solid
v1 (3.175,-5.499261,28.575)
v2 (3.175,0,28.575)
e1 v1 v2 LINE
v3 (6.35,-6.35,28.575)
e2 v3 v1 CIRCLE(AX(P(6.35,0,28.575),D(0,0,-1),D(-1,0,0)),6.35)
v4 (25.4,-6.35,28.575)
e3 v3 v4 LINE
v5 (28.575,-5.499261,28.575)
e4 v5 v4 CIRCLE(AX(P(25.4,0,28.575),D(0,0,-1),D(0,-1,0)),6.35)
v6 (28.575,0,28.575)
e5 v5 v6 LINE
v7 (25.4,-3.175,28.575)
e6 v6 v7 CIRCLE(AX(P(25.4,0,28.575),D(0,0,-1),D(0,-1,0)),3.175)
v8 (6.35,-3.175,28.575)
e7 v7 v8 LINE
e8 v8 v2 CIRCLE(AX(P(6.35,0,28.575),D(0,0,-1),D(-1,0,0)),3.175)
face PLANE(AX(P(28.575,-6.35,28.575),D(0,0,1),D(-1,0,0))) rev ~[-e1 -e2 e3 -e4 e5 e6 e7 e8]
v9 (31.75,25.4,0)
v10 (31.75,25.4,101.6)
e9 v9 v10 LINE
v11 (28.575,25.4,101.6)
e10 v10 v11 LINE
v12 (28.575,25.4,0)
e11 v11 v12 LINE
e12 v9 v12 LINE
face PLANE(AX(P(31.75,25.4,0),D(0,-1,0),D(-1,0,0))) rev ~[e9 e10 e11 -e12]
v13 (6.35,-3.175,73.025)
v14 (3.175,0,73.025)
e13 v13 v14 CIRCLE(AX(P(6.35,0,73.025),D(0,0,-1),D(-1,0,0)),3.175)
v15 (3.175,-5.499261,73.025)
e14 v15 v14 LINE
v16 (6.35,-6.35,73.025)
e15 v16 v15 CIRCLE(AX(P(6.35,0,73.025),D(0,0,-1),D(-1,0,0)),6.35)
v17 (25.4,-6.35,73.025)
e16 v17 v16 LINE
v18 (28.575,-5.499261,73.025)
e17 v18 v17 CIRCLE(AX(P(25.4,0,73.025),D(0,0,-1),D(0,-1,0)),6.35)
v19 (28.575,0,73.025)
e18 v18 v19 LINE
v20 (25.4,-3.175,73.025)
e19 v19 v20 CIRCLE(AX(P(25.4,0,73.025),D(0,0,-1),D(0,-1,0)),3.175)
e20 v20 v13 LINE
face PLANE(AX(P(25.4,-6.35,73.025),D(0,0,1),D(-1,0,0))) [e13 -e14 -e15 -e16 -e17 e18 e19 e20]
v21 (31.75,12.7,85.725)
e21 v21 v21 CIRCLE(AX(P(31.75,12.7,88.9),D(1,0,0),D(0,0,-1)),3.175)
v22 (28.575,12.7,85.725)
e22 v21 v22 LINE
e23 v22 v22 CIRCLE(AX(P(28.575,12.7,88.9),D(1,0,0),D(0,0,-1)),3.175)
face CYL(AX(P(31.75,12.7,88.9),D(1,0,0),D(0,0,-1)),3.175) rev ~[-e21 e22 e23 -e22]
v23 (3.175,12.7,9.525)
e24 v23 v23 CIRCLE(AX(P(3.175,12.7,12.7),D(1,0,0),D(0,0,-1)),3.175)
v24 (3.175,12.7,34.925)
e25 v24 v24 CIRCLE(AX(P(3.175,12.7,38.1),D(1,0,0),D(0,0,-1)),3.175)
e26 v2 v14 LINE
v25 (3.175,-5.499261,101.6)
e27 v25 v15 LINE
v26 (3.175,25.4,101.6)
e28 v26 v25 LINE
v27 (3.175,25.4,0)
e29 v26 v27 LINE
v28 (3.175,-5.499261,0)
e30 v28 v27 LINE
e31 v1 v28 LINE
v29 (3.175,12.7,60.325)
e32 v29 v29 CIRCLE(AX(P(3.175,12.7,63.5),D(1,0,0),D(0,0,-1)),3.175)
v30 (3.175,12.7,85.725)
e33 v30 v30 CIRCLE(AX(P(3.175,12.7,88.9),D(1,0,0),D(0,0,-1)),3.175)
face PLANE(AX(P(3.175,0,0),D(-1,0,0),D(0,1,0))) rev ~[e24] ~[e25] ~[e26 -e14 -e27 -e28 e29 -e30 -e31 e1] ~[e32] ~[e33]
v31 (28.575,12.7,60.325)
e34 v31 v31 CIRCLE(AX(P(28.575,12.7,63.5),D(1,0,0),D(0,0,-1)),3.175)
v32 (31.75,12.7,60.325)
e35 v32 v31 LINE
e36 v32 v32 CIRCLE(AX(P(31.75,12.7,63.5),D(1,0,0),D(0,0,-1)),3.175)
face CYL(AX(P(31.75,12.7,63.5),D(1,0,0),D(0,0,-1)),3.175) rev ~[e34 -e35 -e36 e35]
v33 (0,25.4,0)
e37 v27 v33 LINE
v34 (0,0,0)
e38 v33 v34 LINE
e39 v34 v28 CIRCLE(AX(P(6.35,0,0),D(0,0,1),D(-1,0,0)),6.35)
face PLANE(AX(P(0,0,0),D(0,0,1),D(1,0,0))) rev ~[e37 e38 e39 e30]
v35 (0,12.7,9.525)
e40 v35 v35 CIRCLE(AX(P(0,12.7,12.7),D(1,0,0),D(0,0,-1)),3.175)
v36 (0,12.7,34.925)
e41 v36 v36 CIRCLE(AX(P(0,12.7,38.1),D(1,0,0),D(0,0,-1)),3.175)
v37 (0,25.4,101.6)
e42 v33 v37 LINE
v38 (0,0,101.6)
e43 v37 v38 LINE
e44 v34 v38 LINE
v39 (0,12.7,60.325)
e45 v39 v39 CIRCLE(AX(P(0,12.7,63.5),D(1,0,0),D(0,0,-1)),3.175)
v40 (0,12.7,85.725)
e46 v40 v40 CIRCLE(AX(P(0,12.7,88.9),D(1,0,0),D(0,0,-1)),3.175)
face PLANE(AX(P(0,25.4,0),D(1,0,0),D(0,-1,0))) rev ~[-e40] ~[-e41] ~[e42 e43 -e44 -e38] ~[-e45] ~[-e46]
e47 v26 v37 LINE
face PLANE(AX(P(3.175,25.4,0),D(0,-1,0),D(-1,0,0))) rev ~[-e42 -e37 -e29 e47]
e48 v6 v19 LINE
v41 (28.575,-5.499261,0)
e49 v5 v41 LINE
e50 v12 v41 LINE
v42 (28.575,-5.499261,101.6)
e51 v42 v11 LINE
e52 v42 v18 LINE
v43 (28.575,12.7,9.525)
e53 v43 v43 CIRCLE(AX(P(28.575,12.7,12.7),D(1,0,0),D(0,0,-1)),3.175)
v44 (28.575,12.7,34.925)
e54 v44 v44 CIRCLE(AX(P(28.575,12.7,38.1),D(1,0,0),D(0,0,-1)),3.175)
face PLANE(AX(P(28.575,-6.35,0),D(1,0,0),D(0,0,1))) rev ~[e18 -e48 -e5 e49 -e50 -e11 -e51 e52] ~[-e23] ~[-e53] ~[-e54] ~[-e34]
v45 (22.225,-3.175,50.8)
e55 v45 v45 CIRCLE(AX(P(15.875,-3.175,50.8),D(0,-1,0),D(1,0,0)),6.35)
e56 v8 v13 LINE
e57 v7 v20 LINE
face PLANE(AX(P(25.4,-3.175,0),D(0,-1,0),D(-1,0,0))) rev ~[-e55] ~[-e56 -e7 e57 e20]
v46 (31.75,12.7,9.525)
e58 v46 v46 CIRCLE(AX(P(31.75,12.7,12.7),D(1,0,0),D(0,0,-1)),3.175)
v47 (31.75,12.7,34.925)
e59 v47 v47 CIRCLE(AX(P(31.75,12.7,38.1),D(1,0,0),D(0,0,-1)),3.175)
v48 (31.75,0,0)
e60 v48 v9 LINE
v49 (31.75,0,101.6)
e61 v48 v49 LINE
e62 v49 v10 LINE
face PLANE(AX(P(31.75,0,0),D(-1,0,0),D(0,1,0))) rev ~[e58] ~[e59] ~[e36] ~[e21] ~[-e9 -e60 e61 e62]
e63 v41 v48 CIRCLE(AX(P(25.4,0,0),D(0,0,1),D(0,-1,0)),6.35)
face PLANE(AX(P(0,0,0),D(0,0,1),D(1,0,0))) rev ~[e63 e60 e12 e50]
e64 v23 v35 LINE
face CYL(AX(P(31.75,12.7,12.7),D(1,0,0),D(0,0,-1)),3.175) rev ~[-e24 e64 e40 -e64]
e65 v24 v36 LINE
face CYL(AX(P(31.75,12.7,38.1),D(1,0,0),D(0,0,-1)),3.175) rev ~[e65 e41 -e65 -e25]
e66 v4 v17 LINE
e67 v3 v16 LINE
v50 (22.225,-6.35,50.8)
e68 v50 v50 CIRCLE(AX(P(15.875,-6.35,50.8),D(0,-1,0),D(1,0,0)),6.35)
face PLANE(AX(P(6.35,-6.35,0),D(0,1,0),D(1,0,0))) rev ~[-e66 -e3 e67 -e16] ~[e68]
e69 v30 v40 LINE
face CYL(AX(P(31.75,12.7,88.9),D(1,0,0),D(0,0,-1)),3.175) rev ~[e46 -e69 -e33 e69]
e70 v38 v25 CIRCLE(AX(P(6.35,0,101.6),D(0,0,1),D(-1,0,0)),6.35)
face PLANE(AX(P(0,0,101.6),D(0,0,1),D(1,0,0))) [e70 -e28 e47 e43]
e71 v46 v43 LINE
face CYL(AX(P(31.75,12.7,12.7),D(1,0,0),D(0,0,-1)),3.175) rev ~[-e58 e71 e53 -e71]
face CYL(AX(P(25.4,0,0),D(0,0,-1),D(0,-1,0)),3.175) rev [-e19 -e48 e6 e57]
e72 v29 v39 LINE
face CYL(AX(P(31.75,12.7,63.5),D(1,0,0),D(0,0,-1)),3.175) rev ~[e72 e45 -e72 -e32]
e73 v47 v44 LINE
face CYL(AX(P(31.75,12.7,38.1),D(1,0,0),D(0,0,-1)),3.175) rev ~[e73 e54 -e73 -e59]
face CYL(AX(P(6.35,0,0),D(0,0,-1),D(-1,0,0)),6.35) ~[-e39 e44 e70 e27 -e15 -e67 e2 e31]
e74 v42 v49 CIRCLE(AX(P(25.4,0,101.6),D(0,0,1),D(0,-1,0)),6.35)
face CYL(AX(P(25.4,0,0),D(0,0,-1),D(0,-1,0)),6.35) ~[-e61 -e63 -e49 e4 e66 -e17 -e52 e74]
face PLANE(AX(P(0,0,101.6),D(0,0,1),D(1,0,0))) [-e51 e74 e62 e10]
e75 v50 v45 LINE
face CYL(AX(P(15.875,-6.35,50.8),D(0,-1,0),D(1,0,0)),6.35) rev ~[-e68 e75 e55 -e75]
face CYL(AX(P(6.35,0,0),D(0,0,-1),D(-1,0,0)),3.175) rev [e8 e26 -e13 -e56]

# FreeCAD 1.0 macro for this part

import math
import FreeCAD as App
import Part
import Sketcher
from FreeCAD import Vector
Q = App.Units.Quantity


def add_polygon(sketch, points):
    """Adds a closed chain of lines whose ends are joined by coincident constraints."""
    first, n = sketch.GeometryCount, len(points)
    for a, b in zip(points, points[1:] + points[:1]):
        sketch.addGeometry(Part.LineSegment(App.Vector(*a, 0), App.Vector(*b, 0)), False)
    for i in range(n):
        sketch.addConstraint(Sketcher.Constraint("Coincident", first + i, 2, first + (i + 1) % n, 1))

doc = App.newDocument("Part")
body = doc.addObject("PartDesign::Body", "Body")

sketch1 = doc.addObject("Sketcher::SketchObject", "Sketch")
body.addObject(sketch1)
sketch1.AttachmentSupport = (doc.XY_Plane, [""])
sketch1.MapMode = "FlatFace"
sketch1.addGeometry(Part.LineSegment(Vector(3.2, 25.4, 0), Vector(0, 25.4, 0)), False)
sketch1.addGeometry(Part.LineSegment(Vector(0, 25.4, 0), Vector(0, 0, 0)), False)
sketch1.addGeometry(Part.ArcOfCircle(Part.Circle(Vector(6.3, 0, 0), Vector(0, 0, 1), 6.3), math.radians(180), math.radians(270)), False)
sketch1.addGeometry(Part.LineSegment(Vector(6.3, -6.3, 0), Vector(25.4, -6.3, 0)), False)
sketch1.addGeometry(Part.ArcOfCircle(Part.Circle(Vector(25.4, 0, 0), Vector(0, 0, 1), 6.3), math.radians(-90), math.radians(0)), False)
sketch1.addGeometry(Part.LineSegment(Vector(31.8, 0, 0), Vector(31.8, 25.4, 0)), False)
sketch1.addGeometry(Part.LineSegment(Vector(31.8, 25.4, 0), Vector(28.6, 25.4, 0)), False)
sketch1.addGeometry(Part.LineSegment(Vector(28.6, 25.4, 0), Vector(28.6, 0, 0)), False)
sketch1.addGeometry(Part.ArcOfCircle(Part.Circle(Vector(25.4, 0, 0), Vector(0, 0, 1), 3.2), math.radians(-90), math.radians(0)), False)
sketch1.addGeometry(Part.LineSegment(Vector(25.4, -3.2, 0), Vector(6.3, -3.2, 0)), False)
sketch1.addGeometry(Part.ArcOfCircle(Part.Circle(Vector(6.3, 0, 0), Vector(0, 0, 1), 3.2), math.radians(180), math.radians(270)), False)
sketch1.addGeometry(Part.LineSegment(Vector(3.2, 0, 0), Vector(3.2, 25.4, 0)), False)
sketch1.addConstraint(Sketcher.Constraint("Coincident", 0, 2, 1, 1))
sketch1.addConstraint(Sketcher.Constraint("Tangent", 1, 2, 2, 1))
sketch1.addConstraint(Sketcher.Constraint("Tangent", 2, 2, 3, 1))
sketch1.addConstraint(Sketcher.Constraint("Tangent", 3, 2, 4, 1))
sketch1.addConstraint(Sketcher.Constraint("Tangent", 4, 2, 5, 1))
sketch1.addConstraint(Sketcher.Constraint("Coincident", 5, 2, 6, 1))
sketch1.addConstraint(Sketcher.Constraint("Coincident", 6, 2, 7, 1))
sketch1.addConstraint(Sketcher.Constraint("Tangent", 7, 2, 8, 2))
sketch1.addConstraint(Sketcher.Constraint("Tangent", 8, 1, 9, 1))
sketch1.addConstraint(Sketcher.Constraint("Tangent", 9, 2, 10, 2))
sketch1.addConstraint(Sketcher.Constraint("Tangent", 10, 1, 11, 1))
sketch1.addConstraint(Sketcher.Constraint("Coincident", 11, 2, 0, 1))
sketch1.addConstraint(Sketcher.Constraint("Horizontal", 0))
sketch1.addConstraint(Sketcher.Constraint("Vertical", 1))
sketch1.addConstraint(Sketcher.Constraint("Horizontal", 3))
sketch1.addConstraint(Sketcher.Constraint("Vertical", 5))
sketch1.addConstraint(Sketcher.Constraint("Horizontal", 6))
sketch1.addConstraint(Sketcher.Constraint("Vertical", 7))
sketch1.addConstraint(Sketcher.Constraint("Horizontal", 9))
sketch1.addConstraint(Sketcher.Constraint("Vertical", 11))
sketch1.addConstraint(Sketcher.Constraint("Coincident", 1, 2, -1, 1))
sketch1.addConstraint(Sketcher.Constraint("Coincident", 8, 3, 4, 3))
sketch1.addConstraint(Sketcher.Constraint("Coincident", 10, 3, 2, 3))
sketch1.addConstraint(Sketcher.Constraint("Equal", 2, 4))
sketch1.addConstraint(Sketcher.Constraint("Horizontal", 0, 2, 5, 2))
sketch1.addConstraint(Sketcher.Constraint("DistanceY", 1, 2, 1, 1, Q("1 in")))
sketch1.addConstraint(Sketcher.Constraint("DistanceX", -1, 1, 4, 3, Q("1 in")))
sketch1.addConstraint(Sketcher.Constraint("Radius", 8, Q("0.125 in")))
sketch1.addConstraint(Sketcher.Constraint("DistanceX", 11, 2, 6, 2, Q("1 in")))
pad1 = doc.addObject("PartDesign::Pad", "Pad")
body.addObject(pad1)
pad1.Profile = sketch1
pad1.Length = Q("4 in")

sketch2 = doc.addObject("Sketcher::SketchObject", "Sketch001")
body.addObject(sketch2)
sketch2.AttachmentSupport = (doc.YZ_Plane, [""])
sketch2.MapMode = "FlatFace"
sketch2.AttachmentOffset = App.Placement(Vector(0, 0, 1.25 * 25.4), App.Rotation())
sketch2.addGeometry(Part.Circle(Vector(12.7, 88.9, 0), Vector(0, 0, 1), 3.2), False)
sketch2.addConstraint(Sketcher.Constraint("Diameter", 0, Q("0.25 in")))
sketch2.addConstraint(Sketcher.Constraint("DistanceX", -1, 1, 0, 3, Q("0.5 in")))
sketch2.addConstraint(Sketcher.Constraint("DistanceY", -1, 1, 0, 3, Q("3.5 in")))
pocket1 = doc.addObject("PartDesign::Pocket", "Pocket")
body.addObject(pocket1)
pocket1.Profile = sketch2
pocket1.Type = "ThroughAll"
doc.recompute()

linearpattern = doc.addObject("PartDesign::LinearPattern", "LinearPattern")
body.addObject(linearpattern)
linearpattern.Originals = [pocket1]
linearpattern.Direction = (doc.Z_Axis, [""])
linearpattern.Mode = "offset"
linearpattern.Offset = Q("1 in")
linearpattern.Occurrences = 7
linearpattern.Reversed = True
body.Tip = linearpattern

sketch3 = doc.addObject("Sketcher::SketchObject", "Sketch002")
body.addObject(sketch3)
sketch3.AttachmentSupport = (doc.XZ_Plane, [""])
sketch3.MapMode = "FlatFace"
sketch3.AttachmentOffset = App.Placement(Vector(0, 0, 0.25 * 25.4), App.Rotation())
sketch3.addGeometry(Part.Circle(Vector(16, 51, 0), Vector(0, 0, 1), 6), False)
sketch3.addConstraint(Sketcher.Constraint("Diameter", 0, Q("0.5 in")))
sketch3.addConstraint(Sketcher.Constraint("DistanceY", -1, 1, 0, 3, Q("2 in")))
sketch3.addConstraint(Sketcher.Constraint("DistanceX", -1, 1, 0, 3, Q("0.625 in")))
pocket2 = doc.addObject("PartDesign::Pocket", "Pocket001")
body.addObject(pocket2)
pocket2.Profile = sketch3
pocket2.Type = "UpToFirst"

sketch4 = doc.addObject("Sketcher::SketchObject", "Sketch003")
body.addObject(sketch4)
sketch4.AttachmentSupport = (doc.XZ_Plane, [""])
sketch4.MapMode = "FlatFace"
sketch4.AttachmentOffset = App.Placement(Vector(0, 0, 0.25 * 25.4), App.Rotation())
add_polygon(sketch4, [(29, 73), (29, 102), (3, 102), (3, 73)])
add_polygon(sketch4, [(29, 29), (3, 29), (3, 0), (29, 0)])
sketch4.addConstraint(Sketcher.Constraint("Vertical", 0))
sketch4.addConstraint(Sketcher.Constraint("Horizontal", 1))
sketch4.addConstraint(Sketcher.Constraint("Vertical", 2))
sketch4.addConstraint(Sketcher.Constraint("Horizontal", 3))
sketch4.addConstraint(Sketcher.Constraint("Horizontal", 4))
sketch4.addConstraint(Sketcher.Constraint("Vertical", 5))
sketch4.addConstraint(Sketcher.Constraint("Horizontal", 6))
sketch4.addConstraint(Sketcher.Constraint("Vertical", 7))
sketch4.addConstraint(Sketcher.Constraint("PointOnObject", 5, 2, -1))
sketch4.addConstraint(Sketcher.Constraint("Vertical", 2, 2, 4, 2))
sketch4.addConstraint(Sketcher.Constraint("Vertical", 3, 2, 6, 2))
sketch4.addConstraint(Sketcher.Constraint("Equal", 2, 5))
sketch4.addConstraint(Sketcher.Constraint("DistanceX", 1, 2, 1, 1, Q("1 in")))
sketch4.addConstraint(Sketcher.Constraint("DistanceY", 0, 1, 0, 2, Q("1.125 in")))
sketch4.addConstraint(Sketcher.Constraint("DistanceX", -1, 1, 0, 2, Q("1.125 in")))
sketch4.addConstraint(Sketcher.Constraint("DistanceY", -1, 1, 0, 2, Q("4 in")))
pocket3 = doc.addObject("PartDesign::Pocket", "Pocket002")
body.addObject(pocket3)
pocket3.Profile = sketch4
pocket3.Type = "ThroughAll"

doc.recompute()
